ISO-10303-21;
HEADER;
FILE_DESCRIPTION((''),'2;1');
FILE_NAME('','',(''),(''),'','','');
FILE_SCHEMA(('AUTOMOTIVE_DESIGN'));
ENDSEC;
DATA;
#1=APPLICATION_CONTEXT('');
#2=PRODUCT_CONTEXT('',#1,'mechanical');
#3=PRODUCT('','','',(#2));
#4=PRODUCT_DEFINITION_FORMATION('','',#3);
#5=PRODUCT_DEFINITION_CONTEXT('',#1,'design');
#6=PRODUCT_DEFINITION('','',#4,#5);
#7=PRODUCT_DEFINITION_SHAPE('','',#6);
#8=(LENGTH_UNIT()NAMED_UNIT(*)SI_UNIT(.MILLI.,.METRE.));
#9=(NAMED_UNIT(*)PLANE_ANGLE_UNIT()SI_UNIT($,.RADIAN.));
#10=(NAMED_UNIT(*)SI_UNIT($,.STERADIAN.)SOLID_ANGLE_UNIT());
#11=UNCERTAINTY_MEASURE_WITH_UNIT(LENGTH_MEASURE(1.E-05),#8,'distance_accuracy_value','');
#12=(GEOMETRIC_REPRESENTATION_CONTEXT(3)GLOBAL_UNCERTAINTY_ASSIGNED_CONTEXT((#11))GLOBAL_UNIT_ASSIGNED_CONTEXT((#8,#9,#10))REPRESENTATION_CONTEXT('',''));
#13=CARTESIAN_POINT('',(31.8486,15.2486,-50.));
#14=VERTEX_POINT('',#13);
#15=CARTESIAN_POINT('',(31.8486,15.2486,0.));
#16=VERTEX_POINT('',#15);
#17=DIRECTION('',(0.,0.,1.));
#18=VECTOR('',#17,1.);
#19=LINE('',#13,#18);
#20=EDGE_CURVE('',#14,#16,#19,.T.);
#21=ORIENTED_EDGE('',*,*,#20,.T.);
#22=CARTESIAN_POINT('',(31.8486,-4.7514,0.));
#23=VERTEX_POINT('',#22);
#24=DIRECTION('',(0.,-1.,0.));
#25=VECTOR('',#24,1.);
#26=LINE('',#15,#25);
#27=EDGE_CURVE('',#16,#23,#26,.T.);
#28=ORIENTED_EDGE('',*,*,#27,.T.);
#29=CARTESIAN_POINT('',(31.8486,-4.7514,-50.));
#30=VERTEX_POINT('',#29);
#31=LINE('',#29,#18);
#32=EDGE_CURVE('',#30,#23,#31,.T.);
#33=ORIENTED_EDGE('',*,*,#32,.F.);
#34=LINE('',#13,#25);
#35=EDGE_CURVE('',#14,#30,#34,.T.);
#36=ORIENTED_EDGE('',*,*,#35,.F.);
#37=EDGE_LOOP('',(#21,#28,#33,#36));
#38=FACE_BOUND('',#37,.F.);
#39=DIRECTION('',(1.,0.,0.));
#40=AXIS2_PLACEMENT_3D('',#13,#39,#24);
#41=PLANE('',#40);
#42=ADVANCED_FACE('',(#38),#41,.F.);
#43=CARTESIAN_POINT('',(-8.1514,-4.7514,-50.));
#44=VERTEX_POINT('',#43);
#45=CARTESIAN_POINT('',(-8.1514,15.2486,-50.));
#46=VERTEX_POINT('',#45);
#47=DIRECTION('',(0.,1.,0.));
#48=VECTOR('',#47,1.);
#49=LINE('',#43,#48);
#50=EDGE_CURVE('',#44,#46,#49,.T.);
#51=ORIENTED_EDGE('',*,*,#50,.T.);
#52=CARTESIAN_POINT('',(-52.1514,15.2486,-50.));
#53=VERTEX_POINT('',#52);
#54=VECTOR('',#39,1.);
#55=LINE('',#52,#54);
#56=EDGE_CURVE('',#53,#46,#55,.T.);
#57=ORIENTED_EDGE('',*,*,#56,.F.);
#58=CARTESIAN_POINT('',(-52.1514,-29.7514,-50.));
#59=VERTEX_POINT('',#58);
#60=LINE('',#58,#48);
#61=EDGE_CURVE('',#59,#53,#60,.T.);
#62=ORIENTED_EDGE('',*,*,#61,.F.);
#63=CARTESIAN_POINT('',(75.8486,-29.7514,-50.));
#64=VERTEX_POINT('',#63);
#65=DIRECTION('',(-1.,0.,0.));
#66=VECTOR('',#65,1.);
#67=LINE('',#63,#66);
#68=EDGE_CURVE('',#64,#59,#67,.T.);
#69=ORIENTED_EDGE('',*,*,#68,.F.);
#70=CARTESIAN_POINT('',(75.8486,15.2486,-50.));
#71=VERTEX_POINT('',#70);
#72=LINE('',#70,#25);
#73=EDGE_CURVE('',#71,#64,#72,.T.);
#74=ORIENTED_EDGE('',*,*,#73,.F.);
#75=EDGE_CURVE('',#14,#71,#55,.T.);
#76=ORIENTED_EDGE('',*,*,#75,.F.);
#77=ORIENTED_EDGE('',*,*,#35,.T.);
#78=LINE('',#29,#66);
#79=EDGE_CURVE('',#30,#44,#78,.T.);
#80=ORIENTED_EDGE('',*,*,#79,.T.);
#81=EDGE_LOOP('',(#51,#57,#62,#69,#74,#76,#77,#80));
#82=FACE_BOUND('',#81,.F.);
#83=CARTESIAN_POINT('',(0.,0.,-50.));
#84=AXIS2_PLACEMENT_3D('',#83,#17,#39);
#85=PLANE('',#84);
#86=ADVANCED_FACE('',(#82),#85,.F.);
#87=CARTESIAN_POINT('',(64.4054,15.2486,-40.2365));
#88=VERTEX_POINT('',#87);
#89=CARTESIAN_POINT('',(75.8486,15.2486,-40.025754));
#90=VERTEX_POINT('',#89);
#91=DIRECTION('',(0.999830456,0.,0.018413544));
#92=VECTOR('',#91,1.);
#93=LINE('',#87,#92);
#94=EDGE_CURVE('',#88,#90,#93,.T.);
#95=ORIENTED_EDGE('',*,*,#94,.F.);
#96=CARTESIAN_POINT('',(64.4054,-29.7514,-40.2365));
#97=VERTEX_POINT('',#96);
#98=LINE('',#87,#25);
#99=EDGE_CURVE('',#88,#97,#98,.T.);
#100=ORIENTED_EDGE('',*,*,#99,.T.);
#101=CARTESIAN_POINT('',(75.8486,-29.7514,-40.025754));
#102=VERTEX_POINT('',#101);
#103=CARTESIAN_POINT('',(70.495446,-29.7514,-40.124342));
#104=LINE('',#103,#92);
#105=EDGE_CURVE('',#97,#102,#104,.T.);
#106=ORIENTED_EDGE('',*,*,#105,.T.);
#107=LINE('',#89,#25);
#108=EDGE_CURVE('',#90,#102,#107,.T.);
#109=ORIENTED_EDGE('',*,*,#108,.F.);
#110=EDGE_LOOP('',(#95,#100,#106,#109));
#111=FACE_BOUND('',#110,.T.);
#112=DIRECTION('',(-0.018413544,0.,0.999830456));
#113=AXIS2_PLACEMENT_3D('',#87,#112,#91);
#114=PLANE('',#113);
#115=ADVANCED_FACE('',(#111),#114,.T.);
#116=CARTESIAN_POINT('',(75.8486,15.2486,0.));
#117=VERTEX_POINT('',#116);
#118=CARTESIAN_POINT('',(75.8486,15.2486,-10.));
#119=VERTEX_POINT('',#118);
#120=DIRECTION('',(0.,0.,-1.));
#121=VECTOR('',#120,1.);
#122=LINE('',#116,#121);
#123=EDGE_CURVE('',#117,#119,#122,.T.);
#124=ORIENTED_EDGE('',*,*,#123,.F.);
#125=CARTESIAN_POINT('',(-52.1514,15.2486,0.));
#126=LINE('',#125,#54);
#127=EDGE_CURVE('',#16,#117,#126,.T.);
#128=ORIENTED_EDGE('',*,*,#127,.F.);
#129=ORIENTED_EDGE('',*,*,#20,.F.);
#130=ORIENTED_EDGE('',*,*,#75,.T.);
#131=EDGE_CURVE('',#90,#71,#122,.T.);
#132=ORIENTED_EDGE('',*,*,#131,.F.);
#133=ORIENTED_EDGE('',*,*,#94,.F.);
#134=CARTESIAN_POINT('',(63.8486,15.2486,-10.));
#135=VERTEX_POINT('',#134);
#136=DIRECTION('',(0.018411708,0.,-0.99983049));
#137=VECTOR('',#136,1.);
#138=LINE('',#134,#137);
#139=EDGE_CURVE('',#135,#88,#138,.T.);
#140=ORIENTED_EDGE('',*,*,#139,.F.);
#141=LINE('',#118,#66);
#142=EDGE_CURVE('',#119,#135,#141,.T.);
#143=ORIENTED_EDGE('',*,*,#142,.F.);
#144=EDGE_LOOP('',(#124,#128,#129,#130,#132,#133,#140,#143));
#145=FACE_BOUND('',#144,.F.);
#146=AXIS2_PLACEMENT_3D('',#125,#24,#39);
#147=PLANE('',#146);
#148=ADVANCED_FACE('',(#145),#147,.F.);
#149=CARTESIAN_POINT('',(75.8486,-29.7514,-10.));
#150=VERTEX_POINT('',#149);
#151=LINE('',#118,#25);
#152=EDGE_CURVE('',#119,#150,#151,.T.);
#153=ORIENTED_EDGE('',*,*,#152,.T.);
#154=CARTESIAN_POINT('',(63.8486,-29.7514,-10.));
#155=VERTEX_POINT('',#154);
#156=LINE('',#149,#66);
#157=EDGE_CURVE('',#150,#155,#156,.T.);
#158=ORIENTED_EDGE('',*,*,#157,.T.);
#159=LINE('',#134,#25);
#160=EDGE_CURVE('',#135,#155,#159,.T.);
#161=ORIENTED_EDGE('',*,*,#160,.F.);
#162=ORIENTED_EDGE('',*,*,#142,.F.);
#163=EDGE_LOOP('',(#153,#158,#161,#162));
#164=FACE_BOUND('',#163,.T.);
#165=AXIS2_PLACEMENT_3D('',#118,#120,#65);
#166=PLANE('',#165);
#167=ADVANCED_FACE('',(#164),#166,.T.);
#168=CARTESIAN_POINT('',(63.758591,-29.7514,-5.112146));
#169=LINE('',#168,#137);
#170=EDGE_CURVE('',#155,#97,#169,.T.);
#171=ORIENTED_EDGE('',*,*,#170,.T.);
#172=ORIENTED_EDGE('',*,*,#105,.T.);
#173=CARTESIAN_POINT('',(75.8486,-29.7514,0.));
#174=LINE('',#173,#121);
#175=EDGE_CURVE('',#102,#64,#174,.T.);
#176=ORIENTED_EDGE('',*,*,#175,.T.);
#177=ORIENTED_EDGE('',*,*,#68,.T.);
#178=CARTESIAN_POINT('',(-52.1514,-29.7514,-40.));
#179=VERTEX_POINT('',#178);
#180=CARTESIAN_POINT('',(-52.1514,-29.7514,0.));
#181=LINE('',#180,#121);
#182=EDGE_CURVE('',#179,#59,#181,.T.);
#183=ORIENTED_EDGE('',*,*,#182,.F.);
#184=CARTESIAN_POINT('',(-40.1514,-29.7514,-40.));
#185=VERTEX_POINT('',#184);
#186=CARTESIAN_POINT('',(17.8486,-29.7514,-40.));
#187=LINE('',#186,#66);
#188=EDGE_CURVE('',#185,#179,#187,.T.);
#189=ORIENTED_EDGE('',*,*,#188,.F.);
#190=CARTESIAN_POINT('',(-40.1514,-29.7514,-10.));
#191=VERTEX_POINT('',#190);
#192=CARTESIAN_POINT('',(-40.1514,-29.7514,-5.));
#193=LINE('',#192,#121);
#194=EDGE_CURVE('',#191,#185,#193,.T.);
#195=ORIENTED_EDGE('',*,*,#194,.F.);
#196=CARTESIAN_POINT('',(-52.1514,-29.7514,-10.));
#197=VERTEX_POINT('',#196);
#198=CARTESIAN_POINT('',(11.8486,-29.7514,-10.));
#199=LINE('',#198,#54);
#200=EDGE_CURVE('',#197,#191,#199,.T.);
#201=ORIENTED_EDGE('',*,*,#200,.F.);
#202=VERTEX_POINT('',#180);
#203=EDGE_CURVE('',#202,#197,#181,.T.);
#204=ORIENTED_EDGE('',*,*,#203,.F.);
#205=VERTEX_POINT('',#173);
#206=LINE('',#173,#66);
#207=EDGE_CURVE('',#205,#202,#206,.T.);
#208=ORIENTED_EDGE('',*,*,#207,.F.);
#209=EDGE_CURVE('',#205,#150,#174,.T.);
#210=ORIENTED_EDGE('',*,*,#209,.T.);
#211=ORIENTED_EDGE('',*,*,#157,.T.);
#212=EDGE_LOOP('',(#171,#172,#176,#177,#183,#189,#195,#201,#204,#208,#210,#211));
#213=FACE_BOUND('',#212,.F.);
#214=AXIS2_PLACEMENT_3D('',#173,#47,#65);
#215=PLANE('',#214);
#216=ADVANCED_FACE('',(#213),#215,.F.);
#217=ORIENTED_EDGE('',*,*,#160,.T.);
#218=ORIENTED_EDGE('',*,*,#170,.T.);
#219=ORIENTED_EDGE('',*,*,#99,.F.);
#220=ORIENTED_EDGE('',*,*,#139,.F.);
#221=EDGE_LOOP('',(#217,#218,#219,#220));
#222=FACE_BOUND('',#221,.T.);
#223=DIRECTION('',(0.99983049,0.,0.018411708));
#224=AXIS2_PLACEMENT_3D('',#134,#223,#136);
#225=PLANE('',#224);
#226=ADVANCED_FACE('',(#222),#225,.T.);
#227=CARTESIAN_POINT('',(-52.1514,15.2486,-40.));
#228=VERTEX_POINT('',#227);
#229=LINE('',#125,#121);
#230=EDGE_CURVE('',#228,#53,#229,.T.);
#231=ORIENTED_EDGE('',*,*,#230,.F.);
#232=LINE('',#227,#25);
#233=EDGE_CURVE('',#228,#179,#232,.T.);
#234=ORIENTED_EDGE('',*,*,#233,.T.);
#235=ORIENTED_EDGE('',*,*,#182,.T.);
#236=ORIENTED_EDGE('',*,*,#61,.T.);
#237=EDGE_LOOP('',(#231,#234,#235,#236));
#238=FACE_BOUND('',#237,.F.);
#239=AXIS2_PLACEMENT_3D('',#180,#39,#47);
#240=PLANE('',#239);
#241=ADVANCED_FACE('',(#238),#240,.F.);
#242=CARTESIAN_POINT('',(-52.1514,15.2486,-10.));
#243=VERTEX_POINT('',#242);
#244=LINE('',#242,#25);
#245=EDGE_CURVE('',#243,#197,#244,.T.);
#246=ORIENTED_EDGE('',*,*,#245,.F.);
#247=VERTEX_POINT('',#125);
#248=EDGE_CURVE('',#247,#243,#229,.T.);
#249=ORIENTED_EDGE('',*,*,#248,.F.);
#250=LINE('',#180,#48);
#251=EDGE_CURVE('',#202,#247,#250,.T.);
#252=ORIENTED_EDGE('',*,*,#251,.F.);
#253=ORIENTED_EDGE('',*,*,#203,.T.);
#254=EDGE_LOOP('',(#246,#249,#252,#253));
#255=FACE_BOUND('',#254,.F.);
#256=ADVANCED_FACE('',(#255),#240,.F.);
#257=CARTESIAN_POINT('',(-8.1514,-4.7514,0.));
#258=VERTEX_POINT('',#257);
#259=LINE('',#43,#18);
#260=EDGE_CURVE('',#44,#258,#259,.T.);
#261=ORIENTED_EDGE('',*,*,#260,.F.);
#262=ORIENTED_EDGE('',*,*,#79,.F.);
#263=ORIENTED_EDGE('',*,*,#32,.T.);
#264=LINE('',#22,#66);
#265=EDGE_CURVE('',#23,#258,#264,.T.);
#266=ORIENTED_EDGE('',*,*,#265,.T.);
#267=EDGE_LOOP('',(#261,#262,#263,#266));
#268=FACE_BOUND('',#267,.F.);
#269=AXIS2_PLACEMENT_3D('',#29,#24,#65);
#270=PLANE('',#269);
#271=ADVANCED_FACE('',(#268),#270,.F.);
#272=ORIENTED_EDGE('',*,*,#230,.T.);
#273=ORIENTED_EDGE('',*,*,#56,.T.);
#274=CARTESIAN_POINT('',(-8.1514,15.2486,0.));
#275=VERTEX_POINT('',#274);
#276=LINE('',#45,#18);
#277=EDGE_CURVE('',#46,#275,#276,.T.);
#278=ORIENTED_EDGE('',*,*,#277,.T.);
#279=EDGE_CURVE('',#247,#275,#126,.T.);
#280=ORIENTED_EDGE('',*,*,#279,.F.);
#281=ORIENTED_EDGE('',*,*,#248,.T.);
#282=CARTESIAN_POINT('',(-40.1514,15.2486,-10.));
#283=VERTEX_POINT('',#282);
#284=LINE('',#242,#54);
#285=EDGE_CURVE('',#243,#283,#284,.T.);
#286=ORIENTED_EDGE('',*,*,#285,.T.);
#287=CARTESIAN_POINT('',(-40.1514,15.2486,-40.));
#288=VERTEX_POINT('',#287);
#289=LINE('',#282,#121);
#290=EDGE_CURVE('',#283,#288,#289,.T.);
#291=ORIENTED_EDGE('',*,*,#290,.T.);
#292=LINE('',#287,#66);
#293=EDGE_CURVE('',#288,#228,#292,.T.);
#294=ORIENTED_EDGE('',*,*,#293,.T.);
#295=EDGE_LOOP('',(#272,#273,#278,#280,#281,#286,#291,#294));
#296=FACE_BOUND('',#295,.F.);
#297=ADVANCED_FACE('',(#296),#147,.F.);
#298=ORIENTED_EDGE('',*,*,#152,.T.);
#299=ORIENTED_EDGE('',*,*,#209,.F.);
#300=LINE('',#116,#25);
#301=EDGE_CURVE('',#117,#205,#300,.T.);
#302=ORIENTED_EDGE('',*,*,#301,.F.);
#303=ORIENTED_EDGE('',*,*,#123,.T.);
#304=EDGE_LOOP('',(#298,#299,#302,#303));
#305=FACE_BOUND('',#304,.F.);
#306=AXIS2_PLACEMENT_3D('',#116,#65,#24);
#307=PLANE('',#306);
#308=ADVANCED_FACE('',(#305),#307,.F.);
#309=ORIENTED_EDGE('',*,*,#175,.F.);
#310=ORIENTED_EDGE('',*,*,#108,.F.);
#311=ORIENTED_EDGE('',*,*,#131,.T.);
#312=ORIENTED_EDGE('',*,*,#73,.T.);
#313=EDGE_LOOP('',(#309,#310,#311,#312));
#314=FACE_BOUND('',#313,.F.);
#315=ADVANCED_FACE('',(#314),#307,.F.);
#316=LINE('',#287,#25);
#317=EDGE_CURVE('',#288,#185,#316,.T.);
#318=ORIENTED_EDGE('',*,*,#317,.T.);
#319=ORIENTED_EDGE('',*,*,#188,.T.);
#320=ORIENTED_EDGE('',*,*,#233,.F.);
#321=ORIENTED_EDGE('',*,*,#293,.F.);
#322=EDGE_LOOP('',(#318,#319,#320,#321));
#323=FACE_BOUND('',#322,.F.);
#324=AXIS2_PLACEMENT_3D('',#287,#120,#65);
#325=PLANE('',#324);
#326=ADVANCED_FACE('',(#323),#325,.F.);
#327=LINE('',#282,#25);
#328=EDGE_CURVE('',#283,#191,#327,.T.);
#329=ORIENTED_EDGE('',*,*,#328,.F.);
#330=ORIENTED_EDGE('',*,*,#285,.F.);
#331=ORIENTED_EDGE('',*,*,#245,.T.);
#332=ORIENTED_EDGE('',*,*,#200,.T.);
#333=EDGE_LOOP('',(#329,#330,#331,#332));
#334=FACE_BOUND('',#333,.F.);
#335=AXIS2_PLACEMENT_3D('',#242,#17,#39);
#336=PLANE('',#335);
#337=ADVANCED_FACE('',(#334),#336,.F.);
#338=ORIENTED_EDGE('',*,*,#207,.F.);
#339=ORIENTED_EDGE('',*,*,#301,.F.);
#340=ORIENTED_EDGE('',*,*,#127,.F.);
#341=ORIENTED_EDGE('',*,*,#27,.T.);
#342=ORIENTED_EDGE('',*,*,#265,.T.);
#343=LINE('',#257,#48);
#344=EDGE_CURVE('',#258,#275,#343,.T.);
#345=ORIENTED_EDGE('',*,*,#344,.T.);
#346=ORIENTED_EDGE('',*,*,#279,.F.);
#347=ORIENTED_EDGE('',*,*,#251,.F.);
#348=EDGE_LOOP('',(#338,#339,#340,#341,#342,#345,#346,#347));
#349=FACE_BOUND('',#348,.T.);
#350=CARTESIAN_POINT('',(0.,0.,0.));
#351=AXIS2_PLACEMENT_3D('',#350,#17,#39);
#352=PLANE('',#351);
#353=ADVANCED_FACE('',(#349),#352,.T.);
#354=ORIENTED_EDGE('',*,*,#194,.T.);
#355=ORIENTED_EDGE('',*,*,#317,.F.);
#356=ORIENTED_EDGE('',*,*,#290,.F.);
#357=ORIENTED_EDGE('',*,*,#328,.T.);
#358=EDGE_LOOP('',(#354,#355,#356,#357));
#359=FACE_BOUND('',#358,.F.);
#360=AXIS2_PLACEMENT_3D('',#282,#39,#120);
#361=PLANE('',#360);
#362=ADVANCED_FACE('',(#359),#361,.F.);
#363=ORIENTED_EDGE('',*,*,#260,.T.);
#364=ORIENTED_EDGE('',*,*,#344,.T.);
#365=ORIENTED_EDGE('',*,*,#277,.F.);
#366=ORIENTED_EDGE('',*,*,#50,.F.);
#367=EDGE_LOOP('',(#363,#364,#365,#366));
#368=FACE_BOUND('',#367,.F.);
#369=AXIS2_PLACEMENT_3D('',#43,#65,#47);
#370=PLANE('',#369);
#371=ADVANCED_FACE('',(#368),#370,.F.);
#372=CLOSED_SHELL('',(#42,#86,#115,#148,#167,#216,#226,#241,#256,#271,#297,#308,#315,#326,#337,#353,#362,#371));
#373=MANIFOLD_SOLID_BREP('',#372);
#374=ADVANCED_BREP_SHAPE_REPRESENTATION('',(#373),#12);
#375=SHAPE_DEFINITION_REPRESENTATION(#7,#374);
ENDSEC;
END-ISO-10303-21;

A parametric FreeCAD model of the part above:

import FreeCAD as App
import Part
import Sketcher
from FreeCAD import Vector

doc = App.newDocument("Part")
params = doc.addObject("Spreadsheet::Sheet", "Params")
for row, (alias, value) in enumerate([
    ("sketch1_width", "128 mm"),
    ("sketch1_height", "45 mm"),
    ("pad1_length", "50 mm"),
    ("sketch2_height", "20 mm"),
    ("sketch2_width", "40 mm"),
    ("pocket1_length", "50 mm"),
    ("sketch3_width", "12 mm"),
    ("pocket2_length", "50 mm"),
    ("sketch4_width", "12 mm"),
    ("sketch4_height", "30 mm"),
    ("pocket3_length", "50 mm"),
], start=1):
    params.set(f"A{row}", alias)
    params.set(f"B{row}", "=" + value)
    params.setAlias(f"B{row}", alias)

body = doc.addObject("PartDesign::Body", "Body")

sketch1 = doc.addObject("Sketcher::SketchObject", "Sketch")
body.addObject(sketch1)
sketch1.AttachmentSupport = (doc.XY_Plane, [""])
sketch1.MapMode = "FlatFace"
sketch1.addGeometry([
    Part.LineSegment(Vector(76, 15, 0), Vector(-52, 15, 0)),
    Part.LineSegment(Vector(-52, 15, 0), Vector(-52, -30, 0)),
    Part.LineSegment(Vector(-52, -30, 0), Vector(76, -30, 0)),
    Part.LineSegment(Vector(76, -30, 0), Vector(76, 15, 0)),
], False)
sketch1.addConstraint([
    Sketcher.Constraint("Coincident", 0, 2, 1, 1),
    Sketcher.Constraint("Coincident", 1, 2, 2, 1),
    Sketcher.Constraint("Coincident", 2, 2, 3, 1),
    Sketcher.Constraint("Coincident", 3, 2, 0, 1),
    Sketcher.Constraint("Horizontal", 0),
    Sketcher.Constraint("Vertical", 1),
    Sketcher.Constraint("Horizontal", 2),
    Sketcher.Constraint("Vertical", 3),
    Sketcher.Constraint("DistanceX", 0, 2, 0, 1, 128.0),
    Sketcher.Constraint("DistanceY", 1, 2, 1, 1, 45.0),
    Sketcher.Constraint("DistanceX", 0, 2, -1, 1, 52.1514),
    Sketcher.Constraint("DistanceY", -1, 1, 0, 2, 15.2486),
])
sketch1.setExpression("Constraints[8]", "Params.sketch1_width")
sketch1.setExpression("Constraints[9]", "Params.sketch1_height")
pad1 = doc.addObject("PartDesign::Pad", "Pad")
body.addObject(pad1)
pad1.Profile = sketch1
pad1.setExpression("Length", "Params.pad1_length")
pad1.Reversed = True

sketch2 = doc.addObject("Sketcher::SketchObject", "Sketch001")
body.addObject(sketch2)
sketch2.AttachmentSupport = (doc.XY_Plane, [""])
sketch2.MapMode = "FlatFace"
sketch2.AttachmentOffset = App.Placement(Vector(0, 0, -50), App.Rotation())
sketch2.addGeometry([
    Part.LineSegment(Vector(-8, -5, 0), Vector(-8, 15, 0)),
    Part.LineSegment(Vector(-8, 15, 0), Vector(32, 15, 0)),
    Part.LineSegment(Vector(32, 15, 0), Vector(32, -5, 0)),
    Part.LineSegment(Vector(32, -5, 0), Vector(-8, -5, 0)),
], False)
sketch2.addConstraint([
    Sketcher.Constraint("Coincident", 0, 2, 1, 1),
    Sketcher.Constraint("Coincident", 1, 2, 2, 1),
    Sketcher.Constraint("Coincident", 2, 2, 3, 1),
    Sketcher.Constraint("Coincident", 3, 2, 0, 1),
    Sketcher.Constraint("Vertical", 0),
    Sketcher.Constraint("Horizontal", 1),
    Sketcher.Constraint("Vertical", 2),
    Sketcher.Constraint("Horizontal", 3),
    Sketcher.Constraint("DistanceY", 0, 1, 0, 2, 20.0),
    Sketcher.Constraint("DistanceX", 1, 1, 1, 2, 40.0),
    Sketcher.Constraint("DistanceX", 0, 2, -1, 1, 8.1514),
    Sketcher.Constraint("DistanceY", -1, 1, 0, 2, 15.2486),
])
sketch2.setExpression("Constraints[8]", "Params.sketch2_height")
sketch2.setExpression("Constraints[9]", "Params.sketch2_width")
pocket1 = doc.addObject("PartDesign::Pocket", "Pocket")
body.addObject(pocket1)
pocket1.Profile = sketch2
pocket1.setExpression("Length", "Params.pocket1_length")
pocket1.Reversed = True

sketch3 = doc.addObject("Sketcher::SketchObject", "Sketch002")
body.addObject(sketch3)
sketch3.AttachmentSupport = (doc.XZ_Plane, [""])
sketch3.MapMode = "FlatFace"
sketch3.AttachmentOffset = App.Placement(Vector(0, 0, -15.2486), App.Rotation())
sketch3.addGeometry([
    Part.LineSegment(Vector(64, -10, 0), Vector(76, -10, 0)),
    Part.LineSegment(Vector(76, -10, 0), Vector(76, -40, 0)),
    Part.LineSegment(Vector(76, -40, 0), Vector(64, -40, 0)),
    Part.LineSegment(Vector(64, -40, 0), Vector(64, -10, 0)),
], False)
sketch3.addConstraint([
    Sketcher.Constraint("Coincident", 0, 2, 1, 1),
    Sketcher.Constraint("Coincident", 1, 2, 2, 1),
    Sketcher.Constraint("Coincident", 2, 2, 3, 1),
    Sketcher.Constraint("Coincident", 3, 2, 0, 1),
    Sketcher.Constraint("Horizontal", 0),
    Sketcher.Constraint("Vertical", 1),
    Sketcher.Constraint("Perpendicular", 2, 3),
    Sketcher.Constraint("DistanceX", 0, 1, 0, 2, 12.0),
    Sketcher.Constraint("DistanceY", 0, 2, -1, 1, 10.0),
    Sketcher.Constraint("DistanceY", 1, 2, 1, 1, 30.0258),
    Sketcher.Constraint("Distance", 2, 11.4451),
    Sketcher.Constraint("DistanceX", -1, 1, 0, 2, 75.8486),
])
sketch3.setExpression("Constraints[7]", "Params.sketch3_width")
pocket2 = doc.addObject("PartDesign::Pocket", "Pocket001")
body.addObject(pocket2)
pocket2.Profile = sketch3
pocket2.setExpression("Length", "Params.pocket2_length")
pocket2.Reversed = True

sketch4 = doc.addObject("Sketcher::SketchObject", "Sketch003")
body.addObject(sketch4)
sketch4.AttachmentSupport = (doc.XZ_Plane, [""])
sketch4.MapMode = "FlatFace"
sketch4.AttachmentOffset = App.Placement(Vector(0, 0, -15.2486), App.Rotation())
sketch4.addGeometry([
    Part.LineSegment(Vector(-52, -40, 0), Vector(-52, -10, 0)),
    Part.LineSegment(Vector(-52, -10, 0), Vector(-40, -10, 0)),
    Part.LineSegment(Vector(-40, -10, 0), Vector(-40, -40, 0)),
    Part.LineSegment(Vector(-40, -40, 0), Vector(-52, -40, 0)),
], False)
sketch4.addConstraint([
    Sketcher.Constraint("Coincident", 0, 2, 1, 1),
    Sketcher.Constraint("Coincident", 1, 2, 2, 1),
    Sketcher.Constraint("Coincident", 2, 2, 3, 1),
    Sketcher.Constraint("Coincident", 3, 2, 0, 1),
    Sketcher.Constraint("Vertical", 0),
    Sketcher.Constraint("Horizontal", 1),
    Sketcher.Constraint("Vertical", 2),
    Sketcher.Constraint("Horizontal", 3),
    Sketcher.Constraint("DistanceX", 1, 1, 1, 2, 12.0),
    Sketcher.Constraint("DistanceY", 0, 2, -1, 1, 10.0),
    Sketcher.Constraint("DistanceY", 0, 1, 0, 2, 30.0),
    Sketcher.Constraint("DistanceX", 0, 2, -1, 1, 52.1514),
])
sketch4.setExpression("Constraints[8]", "Params.sketch4_width")
sketch4.setExpression("Constraints[10]", "Params.sketch4_height")
pocket3 = doc.addObject("PartDesign::Pocket", "Pocket002")
body.addObject(pocket3)
pocket3.Profile = sketch4
pocket3.setExpression("Length", "Params.pocket3_length")
pocket3.Reversed = True

doc.recompute()
